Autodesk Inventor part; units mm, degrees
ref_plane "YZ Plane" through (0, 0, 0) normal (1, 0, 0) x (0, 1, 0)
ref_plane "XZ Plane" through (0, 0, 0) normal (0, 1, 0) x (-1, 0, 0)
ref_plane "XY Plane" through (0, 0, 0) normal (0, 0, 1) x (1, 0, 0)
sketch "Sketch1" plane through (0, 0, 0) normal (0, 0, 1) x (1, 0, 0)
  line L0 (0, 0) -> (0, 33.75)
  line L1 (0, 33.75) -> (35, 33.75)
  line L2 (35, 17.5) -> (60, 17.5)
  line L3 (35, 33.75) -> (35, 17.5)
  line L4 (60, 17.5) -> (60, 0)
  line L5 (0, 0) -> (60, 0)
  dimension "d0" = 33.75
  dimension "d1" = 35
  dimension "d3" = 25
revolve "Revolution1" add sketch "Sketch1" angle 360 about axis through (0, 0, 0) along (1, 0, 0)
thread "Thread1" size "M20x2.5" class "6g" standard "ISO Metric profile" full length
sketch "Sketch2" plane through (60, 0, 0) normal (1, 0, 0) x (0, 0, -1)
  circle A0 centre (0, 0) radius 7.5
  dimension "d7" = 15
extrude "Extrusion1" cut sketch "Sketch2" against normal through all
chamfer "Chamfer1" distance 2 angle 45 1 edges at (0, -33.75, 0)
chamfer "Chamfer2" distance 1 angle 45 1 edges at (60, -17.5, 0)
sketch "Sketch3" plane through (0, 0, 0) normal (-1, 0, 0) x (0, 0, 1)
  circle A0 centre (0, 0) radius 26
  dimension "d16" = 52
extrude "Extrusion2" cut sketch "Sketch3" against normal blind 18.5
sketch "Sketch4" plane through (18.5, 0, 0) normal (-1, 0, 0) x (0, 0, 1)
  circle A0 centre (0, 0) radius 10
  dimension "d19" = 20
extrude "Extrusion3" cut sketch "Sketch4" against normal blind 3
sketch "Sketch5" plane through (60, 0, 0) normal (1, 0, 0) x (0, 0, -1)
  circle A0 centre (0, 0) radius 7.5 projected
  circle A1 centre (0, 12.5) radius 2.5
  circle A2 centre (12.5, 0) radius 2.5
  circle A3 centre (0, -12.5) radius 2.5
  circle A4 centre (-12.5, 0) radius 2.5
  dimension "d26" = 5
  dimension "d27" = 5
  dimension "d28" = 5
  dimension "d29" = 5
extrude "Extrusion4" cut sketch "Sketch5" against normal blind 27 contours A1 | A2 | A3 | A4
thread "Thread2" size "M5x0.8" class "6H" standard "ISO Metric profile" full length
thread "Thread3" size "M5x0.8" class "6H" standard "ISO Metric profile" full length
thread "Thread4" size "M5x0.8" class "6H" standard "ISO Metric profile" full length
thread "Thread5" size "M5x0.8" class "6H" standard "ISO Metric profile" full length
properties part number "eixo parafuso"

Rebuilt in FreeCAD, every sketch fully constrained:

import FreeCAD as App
import Part
import Sketcher
from FreeCAD import Vector
Q = App.Units.Quantity


def edges_at(feature, points):
    """Names of the edges that pass closest to the given points."""
    edges = feature.Shape.Edges
    near = lambda p: min(range(len(edges)), key=lambda i: edges[i].distToShape(Part.Vertex(*p))[0])
    return sorted({f"Edge{near(p) + 1}" for p in points})

doc = App.newDocument("Part")
body = doc.addObject("PartDesign::Body", "Body")

sketch1 = body.newObject("Sketcher::SketchObject", "Sketch")
sketch1.AttachmentSupport = (doc.getObject("XY_Plane"), [""])
sketch1.MapMode = "FlatFace"
sketch1.addGeometry(Part.LineSegment(Vector(0, 34, 0), Vector(0, 0, 0)), False)
sketch1.addGeometry(Part.LineSegment(Vector(0, 0, 0), Vector(60, 0, 0)), False)
sketch1.addGeometry(Part.LineSegment(Vector(60, 0, 0), Vector(60, 18, 0)), False)
sketch1.addGeometry(Part.LineSegment(Vector(60, 18, 0), Vector(35, 18, 0)), False)
sketch1.addGeometry(Part.LineSegment(Vector(35, 18, 0), Vector(35, 34, 0)), False)
sketch1.addGeometry(Part.LineSegment(Vector(35, 34, 0), Vector(0, 34, 0)), False)
sketch1.addConstraint(Sketcher.Constraint("Coincident", 0, 2, 1, 1))
sketch1.addConstraint(Sketcher.Constraint("Coincident", 1, 2, 2, 1))
sketch1.addConstraint(Sketcher.Constraint("Coincident", 2, 2, 3, 1))
sketch1.addConstraint(Sketcher.Constraint("Coincident", 3, 2, 4, 1))
sketch1.addConstraint(Sketcher.Constraint("Coincident", 4, 2, 5, 1))
sketch1.addConstraint(Sketcher.Constraint("Coincident", 5, 2, 0, 1))
sketch1.addConstraint(Sketcher.Constraint("Vertical", 0))
sketch1.addConstraint(Sketcher.Constraint("Horizontal", 1))
sketch1.addConstraint(Sketcher.Constraint("Vertical", 2))
sketch1.addConstraint(Sketcher.Constraint("Horizontal", 3))
sketch1.addConstraint(Sketcher.Constraint("Vertical", 4))
sketch1.addConstraint(Sketcher.Constraint("Horizontal", 5))
sketch1.addConstraint(Sketcher.Constraint("Coincident", 0, 2, -1, 1))
sketch1.addConstraint(Sketcher.Constraint("DistanceX", 3, 2, 3, 1, Q("25 mm")))
sketch1.addConstraint(Sketcher.Constraint("DistanceX", 5, 2, 5, 1, Q("35 mm")))
sketch1.addConstraint(Sketcher.Constraint("DistanceY", 0, 2, 0, 1, Q("33.75 mm")))
sketch1.addConstraint(Sketcher.Constraint("DistanceY", 2, 1, 2, 2, Q("17.5 mm")))
revolution = body.newObject("PartDesign::Revolution", "Revolution")
revolution.Profile = sketch1
revolution.ReferenceAxis = (sketch1, ["H_Axis"])
revolution.Angle = 360

sketch2 = body.newObject("Sketcher::SketchObject", "Sketch001")
sketch2.AttachmentSupport = (doc.getObject("YZ_Plane"), [""])
sketch2.MapMode = "FlatFace"
sketch2.AttachmentOffset = App.Placement(Vector(0, 0, 60), App.Rotation())
sketch2.addGeometry(Part.Circle(Vector(0, 0, 0), Vector(0, 0, 1), 8), False)
sketch2.addConstraint(Sketcher.Constraint("Coincident", 0, 3, -1, 1))
sketch2.addConstraint(Sketcher.Constraint("Diameter", 0, Q("15 mm")))
pocket1 = body.newObject("PartDesign::Pocket", "Pocket")
pocket1.Profile = sketch2
pocket1.Type = "ThroughAll"
doc.recompute()

chamfer = body.newObject("PartDesign::Chamfer", "Chamfer")
chamfer.Base = (pocket1, edges_at(pocket1, [(0, -33.75, 0)]))
chamfer.Size = 2
doc.recompute()

chamfer2 = body.newObject("PartDesign::Chamfer", "Chamfer001")
chamfer2.Base = (chamfer, edges_at(chamfer, [(60, -17.5, 0)]))
chamfer2.Size = 1

sketch3 = body.newObject("Sketcher::SketchObject", "Sketch002")
sketch3.AttachmentSupport = (doc.getObject("YZ_Plane"), [""])
sketch3.MapMode = "FlatFace"
sketch3.addGeometry(Part.Circle(Vector(0, 0, 0), Vector(0, 0, 1), 26), False)
sketch3.addConstraint(Sketcher.Constraint("Coincident", 0, 3, -1, 1))
sketch3.addConstraint(Sketcher.Constraint("Diameter", 0, Q("52 mm")))
pocket2 = body.newObject("PartDesign::Pocket", "Pocket001")
pocket2.Profile = sketch3
pocket2.Length = 18.5
pocket2.Reversed = True

sketch4 = body.newObject("Sketcher::SketchObject", "Sketch003")
sketch4.AttachmentSupport = (doc.getObject("YZ_Plane"), [""])
sketch4.MapMode = "FlatFace"
sketch4.AttachmentOffset = App.Placement(Vector(0, 0, 18.5), App.Rotation())
sketch4.addGeometry(Part.Circle(Vector(0, 0, 0), Vector(0, 0, 1), 10), False)
sketch4.addConstraint(Sketcher.Constraint("Coincident", 0, 3, -1, 1))
sketch4.addConstraint(Sketcher.Constraint("Diameter", 0, Q("20 mm")))
pocket3 = body.newObject("PartDesign::Pocket", "Pocket002")
pocket3.Profile = sketch4
pocket3.Length = 3
pocket3.Reversed = True

sketch5 = body.newObject("Sketcher::SketchObject", "Sketch004")
sketch5.AttachmentSupport = (doc.getObject("YZ_Plane"), [""])
sketch5.MapMode = "FlatFace"
sketch5.AttachmentOffset = App.Placement(Vector(0, 0, 60), App.Rotation())
sketch5.addGeometry(Part.Circle(Vector(12.5, 0, 0), Vector(0, 0, 1), 2.5), False)
sketch5.addGeometry(Part.Circle(Vector(0, -12.5, 0), Vector(0, 0, 1), 2.5), False)
sketch5.addGeometry(Part.Circle(Vector(-12.5, 0, 0), Vector(0, 0, 1), 2.5), False)
sketch5.addGeometry(Part.Circle(Vector(0, 12.5, 0), Vector(0, 0, 1), 2.5), False)
sketch5.addConstraint(Sketcher.Constraint("Equal", 0, 1))
sketch5.addConstraint(Sketcher.Constraint("Equal", 1, 2))
sketch5.addConstraint(Sketcher.Constraint("Equal", 2, 3))
sketch5.addConstraint(Sketcher.Constraint("Symmetric", 0, 3, 2, 3, -1, 1))
sketch5.addConstraint(Sketcher.Constraint("Symmetric", 1, 3, 3, 3, -1, 1))
sketch5.addConstraint(Sketcher.Constraint("PointOnObject", 0, 3, -1))
sketch5.addConstraint(Sketcher.Constraint("PointOnObject", 1, 3, -2))
sketch5.addConstraint(Sketcher.Constraint("Diameter", 0, Q("5 mm")))
sketch5.addConstraint(Sketcher.Constraint("DistanceX", 2, 3, 0, 3, Q("25 mm")))
sketch5.addConstraint(Sketcher.Constraint("DistanceY", 1, 3, 3, 3, Q("25 mm")))
pocket4 = body.newObject("PartDesign::Pocket", "Pocket003")
pocket4.Profile = sketch5
pocket4.Length = 27

doc.recompute()
